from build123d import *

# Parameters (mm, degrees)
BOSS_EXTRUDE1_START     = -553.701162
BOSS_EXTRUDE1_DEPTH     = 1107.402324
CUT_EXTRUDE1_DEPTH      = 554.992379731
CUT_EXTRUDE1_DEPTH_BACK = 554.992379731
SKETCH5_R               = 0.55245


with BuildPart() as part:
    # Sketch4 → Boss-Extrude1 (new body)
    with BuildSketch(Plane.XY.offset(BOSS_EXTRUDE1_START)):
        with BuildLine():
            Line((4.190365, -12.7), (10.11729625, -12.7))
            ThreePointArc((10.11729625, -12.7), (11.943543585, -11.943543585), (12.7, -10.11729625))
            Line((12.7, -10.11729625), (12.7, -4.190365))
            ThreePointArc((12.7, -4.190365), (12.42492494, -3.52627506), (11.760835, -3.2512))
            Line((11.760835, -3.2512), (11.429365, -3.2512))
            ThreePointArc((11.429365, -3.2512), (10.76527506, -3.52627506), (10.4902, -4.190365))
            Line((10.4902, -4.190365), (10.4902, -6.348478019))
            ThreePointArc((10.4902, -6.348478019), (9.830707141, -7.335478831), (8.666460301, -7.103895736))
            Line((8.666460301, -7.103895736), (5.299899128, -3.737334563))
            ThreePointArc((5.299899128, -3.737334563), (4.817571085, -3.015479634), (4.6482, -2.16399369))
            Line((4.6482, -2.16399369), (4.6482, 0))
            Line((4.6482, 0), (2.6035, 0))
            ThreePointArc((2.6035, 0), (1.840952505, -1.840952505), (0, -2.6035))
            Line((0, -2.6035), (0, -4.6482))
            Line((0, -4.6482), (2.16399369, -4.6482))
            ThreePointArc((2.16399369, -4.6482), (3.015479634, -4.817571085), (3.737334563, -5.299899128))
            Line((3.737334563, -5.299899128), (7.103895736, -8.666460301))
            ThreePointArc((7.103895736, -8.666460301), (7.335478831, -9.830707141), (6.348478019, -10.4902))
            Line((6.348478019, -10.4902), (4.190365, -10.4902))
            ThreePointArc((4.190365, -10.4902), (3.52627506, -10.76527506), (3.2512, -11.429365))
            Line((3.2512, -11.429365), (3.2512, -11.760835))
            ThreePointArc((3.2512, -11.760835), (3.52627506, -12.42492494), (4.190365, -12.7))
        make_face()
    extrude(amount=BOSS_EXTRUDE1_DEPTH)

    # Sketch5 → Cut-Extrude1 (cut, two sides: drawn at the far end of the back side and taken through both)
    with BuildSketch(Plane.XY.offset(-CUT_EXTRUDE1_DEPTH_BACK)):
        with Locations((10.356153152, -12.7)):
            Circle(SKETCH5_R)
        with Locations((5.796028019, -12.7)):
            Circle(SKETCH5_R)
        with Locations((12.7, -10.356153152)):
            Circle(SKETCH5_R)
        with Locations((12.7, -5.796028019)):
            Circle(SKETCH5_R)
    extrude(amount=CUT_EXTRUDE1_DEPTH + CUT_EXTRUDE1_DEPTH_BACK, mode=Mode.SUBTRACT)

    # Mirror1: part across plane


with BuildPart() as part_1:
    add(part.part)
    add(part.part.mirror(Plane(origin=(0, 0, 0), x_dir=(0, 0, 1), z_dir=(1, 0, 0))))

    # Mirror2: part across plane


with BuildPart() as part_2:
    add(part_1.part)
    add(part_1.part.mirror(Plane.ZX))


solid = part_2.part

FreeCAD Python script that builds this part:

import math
import FreeCAD as App
import Part
import Sketcher
from FreeCAD import Vector
Q = App.Units.Quantity

doc = App.newDocument("Part")
params = doc.addObject("Spreadsheet::Sheet", "Params")
for row, (alias, value) in enumerate([
    ("pad1_length", "1107.402324 mm"),
], start=1):
    params.set(f"A{row}", alias)
    params.set(f"B{row}", "=" + value)
    params.setAlias(f"B{row}", alias)

body = doc.addObject("PartDesign::Body", "Body")

# Sketch on XY plane
sketch1 = body.newObject("Sketcher::SketchObject", "Sketch")
sketch1.AttachmentSupport = (doc.getObject("XY_Plane"), [""])
sketch1.MapMode = "FlatFace"
sketch1.AttachmentOffset = App.Placement(Vector(0, 0, -553.701162), App.Rotation())
sketch1.addGeometry([
    Part.LineSegment(Vector(4.19, -12.7, 0), Vector(10.12, -12.7, 0)),  # 0
    Part.ArcOfCircle(Part.Circle(Vector(10.12, -10.12, 0), Vector(0, 0, 1), 2.58), math.radians(-90), math.radians(0)),  # 1
    Part.LineSegment(Vector(12.7, -10.12, 0), Vector(12.7, -4.19, 0)),  # 2
    Part.ArcOfCircle(Part.Circle(Vector(11.76, -4.19, 0), Vector(0, 0, 1), 0.94), math.radians(0), math.radians(90)),  # 3
    Part.LineSegment(Vector(11.76, -3.25, 0), Vector(11.43, -3.25, 0)),  # 4
    Part.ArcOfCircle(Part.Circle(Vector(11.43, -4.19, 0), Vector(0, 0, 1), 0.94), math.radians(90), math.radians(180)),  # 5
    Part.LineSegment(Vector(10.49, -4.19, 0), Vector(10.49, -6.35, 0)),  # 6
    Part.ArcOfCircle(Part.Circle(Vector(9.42, -6.35, 0), Vector(0, 0, 1), 1.07), math.radians(-135), math.radians(0)),  # 7
    Part.LineSegment(Vector(8.67, -7.1, 0), Vector(5.3, -3.74, 0)),  # 8
    Part.ArcOfCircle(Part.Circle(Vector(6.87, -2.16, 0), Vector(0, 0, 1), 2.23), math.radians(-180), math.radians(-135)),  # 9
    Part.LineSegment(Vector(4.65, -2.16, 0), Vector(4.65, 0, 0)),  # 10
    Part.LineSegment(Vector(4.65, 0, 0), Vector(2.6, 0, 0)),  # 11
    Part.ArcOfCircle(Part.Circle(Vector(0, 0, 0), Vector(0, 0, 1), 2.6), math.radians(-90), math.radians(0)),  # 12
    Part.LineSegment(Vector(0, -2.6, 0), Vector(0, -4.65, 0)),  # 13
    Part.LineSegment(Vector(0, -4.65, 0), Vector(2.16, -4.65, 0)),  # 14
    Part.ArcOfCircle(Part.Circle(Vector(2.16, -6.87, 0), Vector(0, 0, 1), 2.23), math.radians(45), math.radians(90)),  # 15
    Part.LineSegment(Vector(3.74, -5.3, 0), Vector(7.1, -8.67, 0)),  # 16
    Part.ArcOfCircle(Part.Circle(Vector(6.35, -9.42, 0), Vector(0, 0, 1), 1.07), math.radians(-90), math.radians(45)),  # 17
    Part.LineSegment(Vector(6.35, -10.49, 0), Vector(4.19, -10.49, 0)),  # 18
    Part.ArcOfCircle(Part.Circle(Vector(4.19, -11.43, 0), Vector(0, 0, 1), 0.94), math.radians(90), math.radians(180)),  # 19
    Part.LineSegment(Vector(3.25, -11.43, 0), Vector(3.25, -11.76, 0)),  # 20
    Part.ArcOfCircle(Part.Circle(Vector(4.19, -11.76, 0), Vector(0, 0, 1), 0.94), math.radians(-180), math.radians(-90)),  # 21
], False)
sketch1.addConstraint([
    Sketcher.Constraint("Tangent", 0, 2, 1, 1),
    Sketcher.Constraint("Tangent", 1, 2, 2, 1),
    Sketcher.Constraint("Tangent", 2, 2, 3, 1),
    Sketcher.Constraint("Tangent", 3, 2, 4, 1),
    Sketcher.Constraint("Tangent", 4, 2, 5, 1),
    Sketcher.Constraint("Tangent", 5, 2, 6, 1),
    Sketcher.Constraint("Tangent", 6, 2, 7, 2),
    Sketcher.Constraint("Tangent", 7, 1, 8, 1),
    Sketcher.Constraint("Tangent", 8, 2, 9, 2),
    Sketcher.Constraint("Tangent", 9, 1, 10, 1),
    Sketcher.Constraint("Coincident", 10, 2, 11, 1),
    Sketcher.Constraint("Coincident", 11, 2, 12, 2),
    Sketcher.Constraint("Coincident", 12, 1, 13, 1),
    Sketcher.Constraint("Coincident", 13, 2, 14, 1),
    Sketcher.Constraint("Tangent", 14, 2, 15, 2),
    Sketcher.Constraint("Tangent", 15, 1, 16, 1),
    Sketcher.Constraint("Tangent", 16, 2, 17, 2),
    Sketcher.Constraint("Tangent", 17, 1, 18, 1),
    Sketcher.Constraint("Tangent", 18, 2, 19, 1),
    Sketcher.Constraint("Tangent", 19, 2, 20, 1),
    Sketcher.Constraint("Tangent", 20, 2, 21, 1),
    Sketcher.Constraint("Tangent", 21, 2, 0, 1),
    Sketcher.Constraint("Horizontal", 0),
    Sketcher.Constraint("Vertical", 2),
    Sketcher.Constraint("Horizontal", 4),
    Sketcher.Constraint("Vertical", 6),
    Sketcher.Constraint("Vertical", 10),
    Sketcher.Constraint("Horizontal", 11),
    Sketcher.Constraint("Vertical", 13),
    Sketcher.Constraint("Horizontal", 14),
    Sketcher.Constraint("Horizontal", 18),
    Sketcher.Constraint("Vertical", 20),
    Sketcher.Constraint("Coincident", 12, 3, -1, 1),
    Sketcher.Constraint("Equal", 3, 5),
    Sketcher.Constraint("Equal", 9, 15),
    Sketcher.Constraint("Equal", 7, 17),
    Sketcher.Constraint("Equal", 5, 19),
    Sketcher.Constraint("Equal", 19, 21),
    Sketcher.Constraint("PointOnObject", 10, 2, -1),
    Sketcher.Constraint("PointOnObject", 12, 1, -2),
    Sketcher.Constraint("Parallel", 8, 16),
    Sketcher.Constraint("Equal", 0, 2),
    Sketcher.Constraint("Equal", 18, 6),
    Sketcher.Constraint("Equal", 14, 10),
    Sketcher.Constraint("Equal", 11, 13),
    Sketcher.Constraint("Equal", 4, 20),
    Sketcher.Constraint("Equal", 8, 16),
    Sketcher.Constraint("DistanceY", 0, 2, -1, 1, Q("0.5 in")),
    Sketcher.Constraint("Radius", 9, Q("0.0876 in")),
    Sketcher.Constraint("Radius", 12, Q("0.1025 in")),
    Sketcher.Constraint("DistanceX", 9, 1, 5, 2, Q("0.23 in")),
    Sketcher.Constraint("DistanceX", 11, 2, 11, 1, Q("0.0805 in")),
    Sketcher.Constraint("DistanceY", 3, 2, -1, 1, Q("0.128 in")),
    Sketcher.Constraint("Radius", 7, 1.068322),
    Sketcher.Constraint("DistanceX", 17, 3, 7, 3, Q("0.121 in")),
    Sketcher.Constraint("Radius", 1, 2.582704),
    Sketcher.Constraint("Radius", 3, 0.939165),
])
pad1 = body.newObject("PartDesign::Pad", "Pad")
pad1.Profile = sketch1
pad1.setExpression("Length", "Params.pad1_length")

# Sketch on XY plane
sketch2 = body.newObject("Sketcher::SketchObject", "Sketch001")
sketch2.AttachmentSupport = (doc.getObject("XY_Plane"), [""])
sketch2.MapMode = "FlatFace"
sketch2.addGeometry([
    Part.Circle(Vector(10.4, -12.7, 0), Vector(0, 0, 1), 0.6),
    Part.Circle(Vector(5.8, -12.7, 0), Vector(0, 0, 1), 0.6),
    Part.Circle(Vector(12.7, -10.4, 0), Vector(0, 0, 1), 0.6),
    Part.Circle(Vector(12.7, -5.8, 0), Vector(0, 0, 1), 0.6),
], False)
sketch2.addConstraint([
    Sketcher.Constraint("Equal", 0, 1),
    Sketcher.Constraint("Equal", 1, 2),
    Sketcher.Constraint("Equal", 2, 3),
    Sketcher.Constraint("Horizontal", 0, 3, 1, 3),
    Sketcher.Constraint("Vertical", 2, 3, 3, 3),
    Sketcher.Constraint("Diameter", 0, Q("0.0435 in")),
    Sketcher.Constraint("DistanceY", 0, 3, -1, 1, Q("0.5 in")),
    Sketcher.Constraint("DistanceX", -1, 1, 2, 3, Q("0.5 in")),
    Sketcher.Constraint("DistanceX", -1, 1, 1, 3, 5.796028),
    Sketcher.Constraint("DistanceY", 3, 3, -1, 1, 5.796028),
    Sketcher.Constraint("DistanceX", -1, 1, 0, 3, 10.356153),
    Sketcher.Constraint("DistanceY", 2, 3, -1, 1, 10.356153),
])
pocket1 = body.newObject("PartDesign::Pocket", "Pocket")
pocket1.Profile = sketch2
pocket1.Type = "ThroughAll"
pocket1.Midplane = True
body2 = doc.addObject("PartDesign::Body", "Body001")
doc.recompute()

body2.BaseFeature = body
doc.recompute()

mirroring = doc.addObject("Part::Mirroring", "Mirroring")
mirroring.Source = body
mirroring.Base = Vector(0, 0, 0)
mirroring.Normal = Vector(1, 0, 0)
body3 = doc.addObject("PartDesign::Body", "Body002")
body3.BaseFeature = mirroring
boolean = body2.newObject("PartDesign::Boolean", "Boolean")
boolean.Type = "Fuse"
boolean.addObjects([body3])
doc.recompute()
body4 = doc.addObject("PartDesign::Body", "Body003")
doc.recompute()

body4.BaseFeature = body2
doc.recompute()

mirroring2 = doc.addObject("Part::Mirroring", "Mirroring001")
mirroring2.Source = body2
mirroring2.Base = Vector(0, 0, 0)
mirroring2.Normal = Vector(0, 1, 0)
body5 = doc.addObject("PartDesign::Body", "Body004")
body5.BaseFeature = mirroring2
boolean2 = body4.newObject("PartDesign::Boolean", "Boolean001")
boolean2.Type = "Fuse"
boolean2.addObjects([body5])
doc.recompute()
mirroring.Visibility = False
mirroring2.Visibility = False

doc.recompute()
